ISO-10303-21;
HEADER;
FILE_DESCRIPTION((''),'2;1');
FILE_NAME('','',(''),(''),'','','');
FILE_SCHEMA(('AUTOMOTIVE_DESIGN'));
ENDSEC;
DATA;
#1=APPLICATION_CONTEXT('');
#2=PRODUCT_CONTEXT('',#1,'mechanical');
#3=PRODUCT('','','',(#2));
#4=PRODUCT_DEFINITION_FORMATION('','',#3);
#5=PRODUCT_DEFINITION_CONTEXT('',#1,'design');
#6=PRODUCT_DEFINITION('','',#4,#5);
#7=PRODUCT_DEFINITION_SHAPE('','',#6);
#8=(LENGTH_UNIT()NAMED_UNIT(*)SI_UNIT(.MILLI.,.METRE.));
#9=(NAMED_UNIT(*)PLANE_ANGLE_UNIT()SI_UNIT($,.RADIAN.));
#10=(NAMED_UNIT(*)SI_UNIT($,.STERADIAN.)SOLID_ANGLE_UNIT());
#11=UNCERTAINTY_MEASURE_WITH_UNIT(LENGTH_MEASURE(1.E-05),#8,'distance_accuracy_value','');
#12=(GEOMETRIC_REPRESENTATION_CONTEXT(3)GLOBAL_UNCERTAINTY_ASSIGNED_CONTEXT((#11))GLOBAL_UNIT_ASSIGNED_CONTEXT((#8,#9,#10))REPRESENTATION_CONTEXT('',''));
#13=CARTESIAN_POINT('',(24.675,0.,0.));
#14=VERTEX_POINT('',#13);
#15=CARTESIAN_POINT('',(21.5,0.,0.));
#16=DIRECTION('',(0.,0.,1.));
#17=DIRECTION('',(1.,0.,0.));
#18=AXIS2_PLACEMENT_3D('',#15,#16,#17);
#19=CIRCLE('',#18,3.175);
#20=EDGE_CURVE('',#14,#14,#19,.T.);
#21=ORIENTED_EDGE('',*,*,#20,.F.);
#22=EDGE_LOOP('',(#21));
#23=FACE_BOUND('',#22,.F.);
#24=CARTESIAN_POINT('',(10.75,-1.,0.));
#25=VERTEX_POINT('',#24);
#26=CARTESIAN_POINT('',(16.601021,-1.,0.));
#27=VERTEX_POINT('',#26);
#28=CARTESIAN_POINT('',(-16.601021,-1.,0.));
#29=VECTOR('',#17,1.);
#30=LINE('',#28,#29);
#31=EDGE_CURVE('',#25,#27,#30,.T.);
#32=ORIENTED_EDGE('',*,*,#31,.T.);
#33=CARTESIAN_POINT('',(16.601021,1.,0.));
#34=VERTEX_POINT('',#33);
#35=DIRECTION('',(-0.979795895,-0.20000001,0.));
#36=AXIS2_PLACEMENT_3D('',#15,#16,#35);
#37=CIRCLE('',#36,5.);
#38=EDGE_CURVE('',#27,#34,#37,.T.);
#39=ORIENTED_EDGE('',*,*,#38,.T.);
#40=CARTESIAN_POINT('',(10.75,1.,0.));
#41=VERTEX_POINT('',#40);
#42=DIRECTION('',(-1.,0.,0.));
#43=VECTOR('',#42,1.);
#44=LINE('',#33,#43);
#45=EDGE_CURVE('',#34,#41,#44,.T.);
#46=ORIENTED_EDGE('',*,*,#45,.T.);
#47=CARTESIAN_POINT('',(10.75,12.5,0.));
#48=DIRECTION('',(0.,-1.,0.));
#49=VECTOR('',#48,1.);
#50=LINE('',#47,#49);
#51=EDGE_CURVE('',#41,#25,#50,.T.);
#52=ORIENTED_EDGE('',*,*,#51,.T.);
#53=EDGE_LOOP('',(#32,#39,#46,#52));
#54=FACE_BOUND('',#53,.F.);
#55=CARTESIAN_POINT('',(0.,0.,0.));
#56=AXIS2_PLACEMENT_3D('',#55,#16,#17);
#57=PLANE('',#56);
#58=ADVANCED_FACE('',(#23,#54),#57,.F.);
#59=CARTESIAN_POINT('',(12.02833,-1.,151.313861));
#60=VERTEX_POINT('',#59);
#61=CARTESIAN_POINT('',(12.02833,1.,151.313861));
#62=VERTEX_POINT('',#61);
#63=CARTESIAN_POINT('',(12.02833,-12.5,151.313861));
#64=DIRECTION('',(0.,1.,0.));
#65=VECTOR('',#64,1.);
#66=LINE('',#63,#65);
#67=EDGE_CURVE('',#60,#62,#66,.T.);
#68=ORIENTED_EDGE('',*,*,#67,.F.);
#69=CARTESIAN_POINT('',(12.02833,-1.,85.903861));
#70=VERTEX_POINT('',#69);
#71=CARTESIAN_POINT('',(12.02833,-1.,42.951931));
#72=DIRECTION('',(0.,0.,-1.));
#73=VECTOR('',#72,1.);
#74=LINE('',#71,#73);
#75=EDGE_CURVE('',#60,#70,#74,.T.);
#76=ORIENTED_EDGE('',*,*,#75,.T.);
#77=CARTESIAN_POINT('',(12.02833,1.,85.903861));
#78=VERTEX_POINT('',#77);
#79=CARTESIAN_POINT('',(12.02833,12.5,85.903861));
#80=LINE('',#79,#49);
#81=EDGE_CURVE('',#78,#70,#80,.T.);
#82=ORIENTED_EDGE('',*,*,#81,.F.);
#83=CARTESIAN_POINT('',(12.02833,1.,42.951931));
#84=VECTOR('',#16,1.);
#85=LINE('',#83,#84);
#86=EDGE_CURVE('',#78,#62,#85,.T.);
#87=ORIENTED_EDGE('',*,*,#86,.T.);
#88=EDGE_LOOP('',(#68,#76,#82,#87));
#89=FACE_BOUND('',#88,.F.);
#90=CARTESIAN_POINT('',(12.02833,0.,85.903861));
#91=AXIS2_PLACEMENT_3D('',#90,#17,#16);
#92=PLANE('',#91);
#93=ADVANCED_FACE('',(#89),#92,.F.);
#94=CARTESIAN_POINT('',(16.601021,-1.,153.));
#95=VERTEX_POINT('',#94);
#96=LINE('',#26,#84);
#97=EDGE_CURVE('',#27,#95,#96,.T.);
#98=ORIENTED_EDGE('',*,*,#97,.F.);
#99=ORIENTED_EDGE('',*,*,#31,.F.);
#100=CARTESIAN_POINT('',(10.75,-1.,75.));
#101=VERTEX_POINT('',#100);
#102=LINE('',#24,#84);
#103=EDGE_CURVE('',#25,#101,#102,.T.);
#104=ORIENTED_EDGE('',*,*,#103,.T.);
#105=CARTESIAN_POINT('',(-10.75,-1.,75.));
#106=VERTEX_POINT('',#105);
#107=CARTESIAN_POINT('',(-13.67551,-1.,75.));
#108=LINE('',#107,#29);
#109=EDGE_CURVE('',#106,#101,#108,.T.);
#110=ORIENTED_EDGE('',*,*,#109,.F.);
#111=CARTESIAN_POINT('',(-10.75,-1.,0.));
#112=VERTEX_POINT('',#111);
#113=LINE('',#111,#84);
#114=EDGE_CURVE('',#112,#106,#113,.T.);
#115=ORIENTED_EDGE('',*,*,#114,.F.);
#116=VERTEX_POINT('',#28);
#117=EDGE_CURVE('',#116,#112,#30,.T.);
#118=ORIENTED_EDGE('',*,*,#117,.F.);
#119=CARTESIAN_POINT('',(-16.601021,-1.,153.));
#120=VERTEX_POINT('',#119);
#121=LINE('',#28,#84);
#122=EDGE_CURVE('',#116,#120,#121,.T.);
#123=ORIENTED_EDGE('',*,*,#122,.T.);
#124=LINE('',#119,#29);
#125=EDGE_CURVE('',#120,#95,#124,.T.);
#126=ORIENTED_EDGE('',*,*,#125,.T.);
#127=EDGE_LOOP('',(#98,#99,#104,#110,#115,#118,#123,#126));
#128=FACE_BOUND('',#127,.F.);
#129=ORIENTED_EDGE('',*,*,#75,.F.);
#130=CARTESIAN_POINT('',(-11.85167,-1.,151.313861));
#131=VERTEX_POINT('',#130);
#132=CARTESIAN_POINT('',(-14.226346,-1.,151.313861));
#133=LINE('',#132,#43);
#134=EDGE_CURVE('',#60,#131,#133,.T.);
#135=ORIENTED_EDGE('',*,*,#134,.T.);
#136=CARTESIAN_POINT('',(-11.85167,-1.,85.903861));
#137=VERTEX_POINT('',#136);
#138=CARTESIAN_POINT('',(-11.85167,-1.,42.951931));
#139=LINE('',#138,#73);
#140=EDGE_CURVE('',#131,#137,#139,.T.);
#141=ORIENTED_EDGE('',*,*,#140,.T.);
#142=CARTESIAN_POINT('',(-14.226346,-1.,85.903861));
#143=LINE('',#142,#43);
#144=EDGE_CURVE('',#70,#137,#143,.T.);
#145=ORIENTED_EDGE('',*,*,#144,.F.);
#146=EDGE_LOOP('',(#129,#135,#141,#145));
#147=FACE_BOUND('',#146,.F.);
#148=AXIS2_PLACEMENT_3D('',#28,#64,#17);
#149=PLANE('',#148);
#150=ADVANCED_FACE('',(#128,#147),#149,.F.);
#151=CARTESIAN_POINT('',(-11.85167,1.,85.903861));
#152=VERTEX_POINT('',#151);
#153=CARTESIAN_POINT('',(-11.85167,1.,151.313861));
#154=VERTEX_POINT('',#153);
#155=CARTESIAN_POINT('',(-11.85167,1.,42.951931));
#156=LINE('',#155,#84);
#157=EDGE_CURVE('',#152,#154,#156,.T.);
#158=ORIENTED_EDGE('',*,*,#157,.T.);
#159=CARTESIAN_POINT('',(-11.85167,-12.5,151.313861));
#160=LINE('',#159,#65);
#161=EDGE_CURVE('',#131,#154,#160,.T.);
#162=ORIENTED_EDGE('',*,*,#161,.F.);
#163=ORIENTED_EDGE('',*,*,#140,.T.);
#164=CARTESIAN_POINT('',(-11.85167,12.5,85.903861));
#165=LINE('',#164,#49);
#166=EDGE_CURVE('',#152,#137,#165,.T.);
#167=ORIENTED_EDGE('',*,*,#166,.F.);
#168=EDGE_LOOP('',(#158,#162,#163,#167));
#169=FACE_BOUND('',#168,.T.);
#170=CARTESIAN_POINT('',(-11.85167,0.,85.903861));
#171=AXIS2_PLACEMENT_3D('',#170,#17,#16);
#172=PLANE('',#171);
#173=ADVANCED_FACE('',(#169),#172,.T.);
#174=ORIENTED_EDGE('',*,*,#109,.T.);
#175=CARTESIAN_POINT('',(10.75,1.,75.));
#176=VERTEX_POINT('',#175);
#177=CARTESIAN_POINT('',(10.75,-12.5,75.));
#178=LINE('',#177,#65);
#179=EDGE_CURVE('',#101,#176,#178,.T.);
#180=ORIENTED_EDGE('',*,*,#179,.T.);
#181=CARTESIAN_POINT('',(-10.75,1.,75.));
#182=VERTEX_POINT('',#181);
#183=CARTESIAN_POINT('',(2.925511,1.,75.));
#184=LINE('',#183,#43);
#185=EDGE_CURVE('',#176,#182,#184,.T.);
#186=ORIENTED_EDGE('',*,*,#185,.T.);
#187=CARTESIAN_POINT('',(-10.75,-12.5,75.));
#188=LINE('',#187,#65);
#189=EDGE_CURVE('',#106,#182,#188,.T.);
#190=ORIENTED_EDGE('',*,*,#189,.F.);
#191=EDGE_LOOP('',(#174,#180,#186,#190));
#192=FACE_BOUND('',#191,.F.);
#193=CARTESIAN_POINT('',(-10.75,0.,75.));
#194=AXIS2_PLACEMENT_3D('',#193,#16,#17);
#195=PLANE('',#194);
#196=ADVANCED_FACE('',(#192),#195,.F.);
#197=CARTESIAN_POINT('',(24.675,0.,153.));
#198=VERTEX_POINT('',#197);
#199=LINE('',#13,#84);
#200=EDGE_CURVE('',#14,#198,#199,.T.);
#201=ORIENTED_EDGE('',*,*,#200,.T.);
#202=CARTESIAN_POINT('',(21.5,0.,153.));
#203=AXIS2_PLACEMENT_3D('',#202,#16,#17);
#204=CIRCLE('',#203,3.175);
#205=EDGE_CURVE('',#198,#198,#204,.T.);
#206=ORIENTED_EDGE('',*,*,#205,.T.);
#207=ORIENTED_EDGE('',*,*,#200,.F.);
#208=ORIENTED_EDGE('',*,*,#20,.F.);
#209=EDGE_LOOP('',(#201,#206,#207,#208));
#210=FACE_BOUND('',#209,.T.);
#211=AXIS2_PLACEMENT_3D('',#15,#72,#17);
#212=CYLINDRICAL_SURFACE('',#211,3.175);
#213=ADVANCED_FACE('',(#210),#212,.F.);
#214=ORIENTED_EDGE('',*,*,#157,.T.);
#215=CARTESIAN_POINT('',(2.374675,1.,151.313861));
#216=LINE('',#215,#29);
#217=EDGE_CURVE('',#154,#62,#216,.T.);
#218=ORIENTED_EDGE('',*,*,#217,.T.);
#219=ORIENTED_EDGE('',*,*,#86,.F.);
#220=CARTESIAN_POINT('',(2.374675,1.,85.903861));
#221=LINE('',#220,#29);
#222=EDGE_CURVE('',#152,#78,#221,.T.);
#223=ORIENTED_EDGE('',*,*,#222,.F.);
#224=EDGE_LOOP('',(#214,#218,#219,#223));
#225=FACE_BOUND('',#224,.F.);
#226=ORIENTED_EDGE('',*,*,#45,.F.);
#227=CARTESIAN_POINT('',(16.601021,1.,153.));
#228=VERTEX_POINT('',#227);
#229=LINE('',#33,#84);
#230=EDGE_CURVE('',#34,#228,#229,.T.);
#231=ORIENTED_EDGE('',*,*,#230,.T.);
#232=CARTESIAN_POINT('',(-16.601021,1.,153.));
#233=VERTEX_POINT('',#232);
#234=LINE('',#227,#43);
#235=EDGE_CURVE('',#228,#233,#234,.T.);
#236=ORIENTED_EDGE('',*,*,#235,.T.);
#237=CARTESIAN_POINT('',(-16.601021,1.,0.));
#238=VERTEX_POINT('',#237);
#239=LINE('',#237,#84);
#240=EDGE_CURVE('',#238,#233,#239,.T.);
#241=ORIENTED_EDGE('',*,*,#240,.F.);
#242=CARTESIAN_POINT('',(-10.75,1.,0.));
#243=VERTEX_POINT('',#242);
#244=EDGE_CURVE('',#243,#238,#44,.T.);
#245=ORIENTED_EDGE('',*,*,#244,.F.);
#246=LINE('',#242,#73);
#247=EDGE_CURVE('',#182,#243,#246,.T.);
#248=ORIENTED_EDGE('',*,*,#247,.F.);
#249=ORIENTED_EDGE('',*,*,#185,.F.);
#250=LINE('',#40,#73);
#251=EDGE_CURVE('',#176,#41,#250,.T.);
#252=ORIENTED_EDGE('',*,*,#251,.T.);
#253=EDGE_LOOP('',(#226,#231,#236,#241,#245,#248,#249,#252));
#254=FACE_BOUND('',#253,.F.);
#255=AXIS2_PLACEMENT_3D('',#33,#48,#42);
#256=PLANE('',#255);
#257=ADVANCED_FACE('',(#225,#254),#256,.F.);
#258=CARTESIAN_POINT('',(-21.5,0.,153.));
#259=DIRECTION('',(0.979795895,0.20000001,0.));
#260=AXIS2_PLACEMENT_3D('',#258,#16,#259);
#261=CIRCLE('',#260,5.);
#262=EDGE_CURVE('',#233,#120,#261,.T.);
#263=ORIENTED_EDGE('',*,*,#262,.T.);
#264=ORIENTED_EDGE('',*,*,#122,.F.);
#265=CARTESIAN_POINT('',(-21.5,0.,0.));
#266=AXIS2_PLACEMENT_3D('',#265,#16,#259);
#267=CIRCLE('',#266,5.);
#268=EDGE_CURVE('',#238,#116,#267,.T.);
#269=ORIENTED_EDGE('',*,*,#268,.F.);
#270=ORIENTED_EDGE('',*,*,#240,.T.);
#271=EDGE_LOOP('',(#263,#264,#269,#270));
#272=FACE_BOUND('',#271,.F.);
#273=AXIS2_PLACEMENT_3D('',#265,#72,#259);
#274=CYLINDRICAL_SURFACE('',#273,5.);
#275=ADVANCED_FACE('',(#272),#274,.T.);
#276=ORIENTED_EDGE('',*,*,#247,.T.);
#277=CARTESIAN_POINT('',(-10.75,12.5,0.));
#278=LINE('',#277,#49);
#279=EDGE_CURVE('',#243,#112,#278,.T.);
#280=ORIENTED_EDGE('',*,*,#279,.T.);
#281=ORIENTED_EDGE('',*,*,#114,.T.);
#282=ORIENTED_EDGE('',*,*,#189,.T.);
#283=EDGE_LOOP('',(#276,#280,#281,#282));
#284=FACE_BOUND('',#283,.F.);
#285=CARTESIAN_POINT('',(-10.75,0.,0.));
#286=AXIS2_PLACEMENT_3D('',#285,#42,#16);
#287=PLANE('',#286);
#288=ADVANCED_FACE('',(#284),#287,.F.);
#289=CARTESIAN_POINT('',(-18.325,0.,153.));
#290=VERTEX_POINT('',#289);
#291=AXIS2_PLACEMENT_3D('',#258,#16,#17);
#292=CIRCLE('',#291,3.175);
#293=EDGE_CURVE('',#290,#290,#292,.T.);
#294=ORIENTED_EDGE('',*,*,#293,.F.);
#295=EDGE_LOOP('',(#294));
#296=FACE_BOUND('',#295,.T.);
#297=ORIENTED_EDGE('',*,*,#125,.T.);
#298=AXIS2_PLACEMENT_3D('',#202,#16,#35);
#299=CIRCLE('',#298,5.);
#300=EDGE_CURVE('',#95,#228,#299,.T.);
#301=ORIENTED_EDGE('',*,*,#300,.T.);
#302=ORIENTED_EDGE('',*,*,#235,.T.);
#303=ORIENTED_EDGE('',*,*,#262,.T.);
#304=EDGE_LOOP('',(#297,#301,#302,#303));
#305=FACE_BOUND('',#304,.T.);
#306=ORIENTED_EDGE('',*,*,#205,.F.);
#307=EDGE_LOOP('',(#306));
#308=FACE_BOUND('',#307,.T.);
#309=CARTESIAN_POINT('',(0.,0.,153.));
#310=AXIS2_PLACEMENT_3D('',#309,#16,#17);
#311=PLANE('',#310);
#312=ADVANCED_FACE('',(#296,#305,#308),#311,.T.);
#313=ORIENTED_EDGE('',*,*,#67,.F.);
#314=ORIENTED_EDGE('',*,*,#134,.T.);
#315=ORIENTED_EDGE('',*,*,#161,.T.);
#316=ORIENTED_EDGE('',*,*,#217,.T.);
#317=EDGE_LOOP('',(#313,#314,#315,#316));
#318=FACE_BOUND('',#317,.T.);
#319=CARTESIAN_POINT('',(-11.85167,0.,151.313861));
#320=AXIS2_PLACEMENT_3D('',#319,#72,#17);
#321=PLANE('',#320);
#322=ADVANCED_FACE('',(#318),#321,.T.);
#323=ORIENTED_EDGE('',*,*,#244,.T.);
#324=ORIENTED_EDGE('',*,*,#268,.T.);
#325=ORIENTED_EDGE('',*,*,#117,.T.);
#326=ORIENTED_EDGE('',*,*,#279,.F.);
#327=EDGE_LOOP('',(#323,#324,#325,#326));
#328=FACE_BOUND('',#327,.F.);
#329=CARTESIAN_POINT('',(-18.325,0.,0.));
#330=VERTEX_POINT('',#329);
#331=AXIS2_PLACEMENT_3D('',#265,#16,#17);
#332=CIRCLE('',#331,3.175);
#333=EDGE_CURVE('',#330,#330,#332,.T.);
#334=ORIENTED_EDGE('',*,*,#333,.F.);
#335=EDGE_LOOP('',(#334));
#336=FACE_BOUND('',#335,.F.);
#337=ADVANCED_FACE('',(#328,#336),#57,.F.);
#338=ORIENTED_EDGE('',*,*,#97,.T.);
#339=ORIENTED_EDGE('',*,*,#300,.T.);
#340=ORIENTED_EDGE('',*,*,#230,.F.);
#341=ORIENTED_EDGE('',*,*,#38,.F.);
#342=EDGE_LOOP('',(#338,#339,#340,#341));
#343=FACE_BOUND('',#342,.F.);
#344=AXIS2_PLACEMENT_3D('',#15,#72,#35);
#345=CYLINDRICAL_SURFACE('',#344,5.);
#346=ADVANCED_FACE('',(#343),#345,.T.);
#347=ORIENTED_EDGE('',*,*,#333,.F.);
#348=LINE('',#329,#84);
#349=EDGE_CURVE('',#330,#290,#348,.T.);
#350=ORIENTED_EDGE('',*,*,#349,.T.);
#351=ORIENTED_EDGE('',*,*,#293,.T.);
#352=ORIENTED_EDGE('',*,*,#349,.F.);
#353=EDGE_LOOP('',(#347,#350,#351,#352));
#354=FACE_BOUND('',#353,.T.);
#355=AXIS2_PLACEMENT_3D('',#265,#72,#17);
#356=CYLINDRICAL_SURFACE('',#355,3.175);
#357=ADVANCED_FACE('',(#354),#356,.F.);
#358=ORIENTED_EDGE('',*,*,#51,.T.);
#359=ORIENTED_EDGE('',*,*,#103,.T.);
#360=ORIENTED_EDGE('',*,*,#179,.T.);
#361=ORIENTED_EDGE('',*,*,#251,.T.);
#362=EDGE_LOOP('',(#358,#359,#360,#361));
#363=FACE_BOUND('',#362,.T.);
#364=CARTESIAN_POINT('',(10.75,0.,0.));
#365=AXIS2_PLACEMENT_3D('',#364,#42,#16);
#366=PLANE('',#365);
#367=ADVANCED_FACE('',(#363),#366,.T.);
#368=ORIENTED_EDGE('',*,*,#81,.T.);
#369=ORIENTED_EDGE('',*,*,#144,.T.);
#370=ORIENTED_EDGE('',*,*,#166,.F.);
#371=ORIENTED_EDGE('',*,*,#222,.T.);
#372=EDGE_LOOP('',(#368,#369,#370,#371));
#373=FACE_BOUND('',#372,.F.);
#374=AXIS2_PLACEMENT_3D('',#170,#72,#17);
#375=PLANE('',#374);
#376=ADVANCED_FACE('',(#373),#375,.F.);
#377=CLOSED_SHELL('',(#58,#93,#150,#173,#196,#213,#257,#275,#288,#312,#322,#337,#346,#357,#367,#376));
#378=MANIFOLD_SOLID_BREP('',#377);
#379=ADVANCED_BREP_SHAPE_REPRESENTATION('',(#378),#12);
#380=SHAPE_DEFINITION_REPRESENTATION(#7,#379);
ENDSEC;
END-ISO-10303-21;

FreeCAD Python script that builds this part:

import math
import FreeCAD as App
import Part
import Sketcher

doc = App.newDocument("Part")
params = doc.addObject("Spreadsheet::Sheet", "Params")
for row, (alias, value) in enumerate([
    ("sketch1_radius", "5 mm"),
    ("sketch1_diameter", "6.35 mm"),
    ("pad1_length", "153 mm"),
    ("sketch2_height", "75 mm"),
    ("sketch2_width", "21.5 mm"),
    ("sketch2_width2", "23.88 mm"),
    ("sketch2_height2", "65.41 mm"),
    ("pocket1_length", "25 mm"),
], start=1):
    params.set(f"A{row}", alias)
    params.set(f"B{row}", "=" + value)
    params.setAlias(f"B{row}", alias)

body = doc.addObject("PartDesign::Body", "Body")

sketch1 = body.newObject("Sketcher::SketchObject", "Sketch")
sketch1.AttachmentSupport = (doc.getObject("XY_Plane"), [""])
sketch1.MapMode = "FlatFace"
sketch1.addGeometry([
    Part.LineSegment(App.Vector(-16.6, -1, 0), App.Vector(16.6, -1, 0)),
    Part.ArcOfCircle(Part.Circle(App.Vector(21.5, 0, 0), App.Vector(0, 0, 1), 5), math.radians(-168), math.radians(168)),
    Part.LineSegment(App.Vector(16.6, 1, 0), App.Vector(-16.6, 1, 0)),
    Part.ArcOfCircle(Part.Circle(App.Vector(-21.5, 0, 0), App.Vector(0, 0, 1), 5), math.radians(12), math.radians(348)),
    Part.Circle(App.Vector(-21.5, 0, 0), App.Vector(0, 0, 1), 3.2),
    Part.Circle(App.Vector(21.5, 0, 0), App.Vector(0, 0, 1), 3.2),
], False)
sketch1.addConstraint([
    Sketcher.Constraint("Coincident", 0, 2, 1, 1),
    Sketcher.Constraint("Coincident", 1, 2, 2, 1),
    Sketcher.Constraint("Coincident", 2, 2, 3, 1),
    Sketcher.Constraint("Coincident", 3, 2, 0, 1),
    Sketcher.Constraint("Horizontal", 0),
    Sketcher.Constraint("Horizontal", 2),
    Sketcher.Constraint("Coincident", 4, 3, 3, 3),
    Sketcher.Constraint("Coincident", 5, 3, 1, 3),
    Sketcher.Constraint("Equal", 1, 3),
    Sketcher.Constraint("Equal", 4, 5),
    Sketcher.Constraint("Symmetric", 1, 3, 3, 3, -1, 1),
    Sketcher.Constraint("Symmetric", 0, 2, 1, 2, -1),
    Sketcher.Constraint("Radius", 1, 5.0),
    Sketcher.Constraint("Diameter", 4, 6.35),
    Sketcher.Constraint("DistanceY", 0, 2, -1, 1, 1.0),
    Sketcher.Constraint("DistanceX", 3, 3, 1, 3, 43.0),
])
sketch1.setExpression("Constraints[12]", "Params.sketch1_radius")
sketch1.setExpression("Constraints[13]", "Params.sketch1_diameter")
pad1 = body.newObject("PartDesign::Pad", "Pad")
pad1.Profile = sketch1
pad1.setExpression("Length", "Params.pad1_length")

sketch2 = body.newObject("Sketcher::SketchObject", "Sketch001")
sketch2.AttachmentSupport = (doc.getObject("XZ_Plane"), [""])
sketch2.MapMode = "FlatFace"
sketch2.addGeometry([
    Part.LineSegment(App.Vector(-11, 75, 0), App.Vector(-11, 0, 0)),
    Part.LineSegment(App.Vector(-11, 0, 0), App.Vector(11, 0, 0)),
    Part.LineSegment(App.Vector(11, 0, 0), App.Vector(11, 75, 0)),
    Part.LineSegment(App.Vector(11, 75, 0), App.Vector(-11, 75, 0)),
    Part.LineSegment(App.Vector(-12, 151, 0), App.Vector(-12, 86, 0)),
    Part.LineSegment(App.Vector(-12, 86, 0), App.Vector(12, 86, 0)),
    Part.LineSegment(App.Vector(12, 86, 0), App.Vector(12, 151, 0)),
    Part.LineSegment(App.Vector(12, 151, 0), App.Vector(-12, 151, 0)),
], False)
sketch2.addConstraint([
    Sketcher.Constraint("Coincident", 0, 2, 1, 1),
    Sketcher.Constraint("Coincident", 1, 2, 2, 1),
    Sketcher.Constraint("Coincident", 2, 2, 3, 1),
    Sketcher.Constraint("Coincident", 3, 2, 0, 1),
    Sketcher.Constraint("Coincident", 4, 2, 5, 1),
    Sketcher.Constraint("Coincident", 5, 2, 6, 1),
    Sketcher.Constraint("Coincident", 6, 2, 7, 1),
    Sketcher.Constraint("Coincident", 7, 2, 4, 1),
    Sketcher.Constraint("Vertical", 0),
    Sketcher.Constraint("Horizontal", 1),
    Sketcher.Constraint("Vertical", 2),
    Sketcher.Constraint("Horizontal", 3),
    Sketcher.Constraint("Vertical", 4),
    Sketcher.Constraint("Horizontal", 5),
    Sketcher.Constraint("Vertical", 6),
    Sketcher.Constraint("Horizontal", 7),
    Sketcher.Constraint("Symmetric", 0, 2, 1, 2, -1, 1),
    Sketcher.Constraint("DistanceY", 0, 2, 0, 1, 75.0),
    Sketcher.Constraint("DistanceX", 1, 1, 1, 2, 21.5),
    Sketcher.Constraint("DistanceX", 5, 1, 5, 2, 23.88),
    Sketcher.Constraint("DistanceY", 4, 2, 4, 1, 65.41),
    Sketcher.Constraint("DistanceX", 4, 2, -1, 1, 11.85167),
    Sketcher.Constraint("DistanceY", -1, 1, 4, 2, 85.903861),
])
sketch2.setExpression("Constraints[17]", "Params.sketch2_height")
sketch2.setExpression("Constraints[18]", "Params.sketch2_width")
sketch2.setExpression("Constraints[19]", "Params.sketch2_width2")
sketch2.setExpression("Constraints[20]", "Params.sketch2_height2")
pocket1 = body.newObject("PartDesign::Pocket", "Pocket")
pocket1.Profile = sketch2
pocket1.setExpression("Length", "Params.pocket1_length")
pocket1.Midplane = True

doc.recompute()
